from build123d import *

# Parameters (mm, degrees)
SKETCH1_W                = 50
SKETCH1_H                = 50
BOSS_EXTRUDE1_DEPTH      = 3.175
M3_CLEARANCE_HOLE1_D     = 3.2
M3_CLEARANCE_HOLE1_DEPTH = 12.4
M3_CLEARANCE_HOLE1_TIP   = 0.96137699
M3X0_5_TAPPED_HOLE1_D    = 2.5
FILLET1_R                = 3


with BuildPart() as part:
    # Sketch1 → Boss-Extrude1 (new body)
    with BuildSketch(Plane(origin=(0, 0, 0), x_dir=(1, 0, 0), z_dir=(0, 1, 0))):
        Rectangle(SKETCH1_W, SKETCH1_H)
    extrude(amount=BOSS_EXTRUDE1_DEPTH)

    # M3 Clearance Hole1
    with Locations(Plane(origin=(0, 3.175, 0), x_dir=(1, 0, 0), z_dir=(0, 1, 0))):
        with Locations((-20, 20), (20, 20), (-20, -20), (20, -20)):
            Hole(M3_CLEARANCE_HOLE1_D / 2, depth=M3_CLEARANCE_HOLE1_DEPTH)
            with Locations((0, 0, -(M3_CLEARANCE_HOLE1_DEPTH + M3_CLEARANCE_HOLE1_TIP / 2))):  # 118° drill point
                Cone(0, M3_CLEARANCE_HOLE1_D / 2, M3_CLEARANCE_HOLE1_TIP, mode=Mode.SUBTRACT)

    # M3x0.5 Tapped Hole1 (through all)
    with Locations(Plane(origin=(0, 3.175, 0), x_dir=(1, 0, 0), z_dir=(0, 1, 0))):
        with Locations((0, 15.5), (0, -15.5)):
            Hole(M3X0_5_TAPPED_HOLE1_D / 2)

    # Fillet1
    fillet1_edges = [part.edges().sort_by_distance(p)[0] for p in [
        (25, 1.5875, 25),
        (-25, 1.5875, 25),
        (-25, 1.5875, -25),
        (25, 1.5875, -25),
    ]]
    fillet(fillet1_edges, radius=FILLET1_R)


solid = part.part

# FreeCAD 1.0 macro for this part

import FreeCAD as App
import Part
import Sketcher
from FreeCAD import Vector


def edges_at(feature, points):
    """Names of the edges that pass closest to the given points."""
    edges = feature.Shape.Edges
    near = lambda p: min(range(len(edges)), key=lambda i: edges[i].distToShape(Part.Vertex(*p))[0])
    return sorted({f"Edge{near(p) + 1}" for p in points})


def add_polygon(sketch, points):
    """Adds a closed chain of lines whose ends are joined by coincident constraints."""
    first, n = sketch.GeometryCount, len(points)
    for a, b in zip(points, points[1:] + points[:1]):
        sketch.addGeometry(Part.LineSegment(App.Vector(*a, 0), App.Vector(*b, 0)), False)
    for i in range(n):
        sketch.addConstraint(Sketcher.Constraint("Coincident", first + i, 2, first + (i + 1) % n, 1))

doc = App.newDocument("Part")
params = doc.addObject("Spreadsheet::Sheet", "Params")
for row, (alias, value) in enumerate([
    ("sketch1_width", "50 mm"),
    ("pad1_length", "3.175 mm"),
    ("sketch2_diameter", "3.2 mm"),
    ("hole_diameter", "3.2 mm"),
    ("hole_depth", "12.4 mm"),
    ("sketch3_diameter", "2.5 mm"),
    ("hole2_diameter", "2.5 mm"),
    ("fillet_radius", "3 mm"),
], start=1):
    params.set(f"A{row}", alias)
    params.set(f"B{row}", "=" + value)
    params.setAlias(f"B{row}", alias)

body = doc.addObject("PartDesign::Body", "Body")

sketch1 = body.newObject("Sketcher::SketchObject", "Sketch")
sketch1.AttachmentSupport = (doc.getObject("XZ_Plane"), [""])
sketch1.MapMode = "FlatFace"
add_polygon(sketch1, [(-25, -25), (-25, 25), (25, 25), (25, -25)])
sketch1.addConstraint(Sketcher.Constraint("Vertical", 0))
sketch1.addConstraint(Sketcher.Constraint("Horizontal", 1))
sketch1.addConstraint(Sketcher.Constraint("Vertical", 2))
sketch1.addConstraint(Sketcher.Constraint("Horizontal", 3))
sketch1.addConstraint(Sketcher.Constraint("Symmetric", 0, 2, 2, 2, -1, 1))
sketch1.addConstraint(Sketcher.Constraint("Equal", 3, 0))
sketch1.addConstraint(Sketcher.Constraint("DistanceX", 1, 1, 1, 2, 50.0))
sketch1.setExpression("Constraints[10]", "Params.sketch1_width")
pad1 = body.newObject("PartDesign::Pad", "Pad")
pad1.Profile = sketch1
pad1.setExpression("Length", "Params.pad1_length")
pad1.Reversed = True

sketch2 = body.newObject("Sketcher::SketchObject", "Sketch001")
sketch2.AttachmentSupport = (doc.getObject("XZ_Plane"), [""])
sketch2.MapMode = "FlatFace"
sketch2.AttachmentOffset = App.Placement(Vector(0, 0, -3.175), App.Rotation())
sketch2.addGeometry(Part.Circle(Vector(-20, -20, 0), Vector(0, 0, 1), 1.6), False)
sketch2.addGeometry(Part.Circle(Vector(20, -20, 0), Vector(0, 0, 1), 1.6), False)
sketch2.addGeometry(Part.Circle(Vector(-20, 20, 0), Vector(0, 0, 1), 1.6), False)
sketch2.addGeometry(Part.Circle(Vector(20, 20, 0), Vector(0, 0, 1), 1.6), False)
sketch2.addConstraint(Sketcher.Constraint("Equal", 0, 1))
sketch2.addConstraint(Sketcher.Constraint("Equal", 1, 2))
sketch2.addConstraint(Sketcher.Constraint("Equal", 2, 3))
sketch2.addConstraint(Sketcher.Constraint("Symmetric", 1, 3, 2, 3, -1, 1))
sketch2.addConstraint(Sketcher.Constraint("Symmetric", 0, 3, 3, 3, -1, 1))
sketch2.addConstraint(Sketcher.Constraint("Symmetric", 0, 3, 1, 3, -2))
sketch2.addConstraint(Sketcher.Constraint("Diameter", 0, 3.2))
sketch2.addConstraint(Sketcher.Constraint("DistanceX", 0, 3, -1, 1, 20.0))
sketch2.addConstraint(Sketcher.Constraint("DistanceY", 0, 3, -1, 1, 20.0))
sketch2.setExpression("Constraints[6]", "Params.sketch2_diameter")
doc.recompute()
hole = body.newObject("PartDesign::Hole", "Hole")
hole.Profile = sketch2
hole.ThreadType = "None"
hole.setExpression("Diameter", "Params.hole_diameter")
hole.DepthType = "Dimension"
hole.setExpression("Depth", "Params.hole_depth")
hole.DrillPoint = "Angled"
hole.DrillPointAngle = 118
hole.Reversed = True

sketch3 = body.newObject("Sketcher::SketchObject", "Sketch002")
sketch3.AttachmentSupport = (doc.getObject("XZ_Plane"), [""])
sketch3.MapMode = "FlatFace"
sketch3.AttachmentOffset = App.Placement(Vector(0, 0, -3.175), App.Rotation())
sketch3.addGeometry(Part.Circle(Vector(0, -15.5, 0), Vector(0, 0, 1), 1.2), False)
sketch3.addGeometry(Part.Circle(Vector(0, 15.5, 0), Vector(0, 0, 1), 1.2), False)
sketch3.addConstraint(Sketcher.Constraint("Equal", 0, 1))
sketch3.addConstraint(Sketcher.Constraint("Symmetric", 0, 3, 1, 3, -1, 1))
sketch3.addConstraint(Sketcher.Constraint("PointOnObject", 0, 3, -2))
sketch3.addConstraint(Sketcher.Constraint("Diameter", 0, 2.5))
sketch3.addConstraint(Sketcher.Constraint("DistanceY", 0, 3, 1, 3, 31.0))
sketch3.setExpression("Constraints[3]", "Params.sketch3_diameter")
doc.recompute()
hole2 = body.newObject("PartDesign::Hole", "Hole001")
hole2.Profile = sketch3
hole2.ThreadType = "None"
hole2.setExpression("Diameter", "Params.hole2_diameter")
hole2.DepthType = "ThroughAll"
hole2.Reversed = True
doc.recompute()

fillet = body.newObject("PartDesign::Fillet", "Fillet")
fillet.Base = (hole2, edges_at(hole2, [
    (25, 1.587, 25),
    (-25, 1.587, 25),
    (-25, 1.587, -25),
    (25, 1.587, -25),
]))
fillet.setExpression("Radius", "Params.fillet_radius")

doc.recompute()
